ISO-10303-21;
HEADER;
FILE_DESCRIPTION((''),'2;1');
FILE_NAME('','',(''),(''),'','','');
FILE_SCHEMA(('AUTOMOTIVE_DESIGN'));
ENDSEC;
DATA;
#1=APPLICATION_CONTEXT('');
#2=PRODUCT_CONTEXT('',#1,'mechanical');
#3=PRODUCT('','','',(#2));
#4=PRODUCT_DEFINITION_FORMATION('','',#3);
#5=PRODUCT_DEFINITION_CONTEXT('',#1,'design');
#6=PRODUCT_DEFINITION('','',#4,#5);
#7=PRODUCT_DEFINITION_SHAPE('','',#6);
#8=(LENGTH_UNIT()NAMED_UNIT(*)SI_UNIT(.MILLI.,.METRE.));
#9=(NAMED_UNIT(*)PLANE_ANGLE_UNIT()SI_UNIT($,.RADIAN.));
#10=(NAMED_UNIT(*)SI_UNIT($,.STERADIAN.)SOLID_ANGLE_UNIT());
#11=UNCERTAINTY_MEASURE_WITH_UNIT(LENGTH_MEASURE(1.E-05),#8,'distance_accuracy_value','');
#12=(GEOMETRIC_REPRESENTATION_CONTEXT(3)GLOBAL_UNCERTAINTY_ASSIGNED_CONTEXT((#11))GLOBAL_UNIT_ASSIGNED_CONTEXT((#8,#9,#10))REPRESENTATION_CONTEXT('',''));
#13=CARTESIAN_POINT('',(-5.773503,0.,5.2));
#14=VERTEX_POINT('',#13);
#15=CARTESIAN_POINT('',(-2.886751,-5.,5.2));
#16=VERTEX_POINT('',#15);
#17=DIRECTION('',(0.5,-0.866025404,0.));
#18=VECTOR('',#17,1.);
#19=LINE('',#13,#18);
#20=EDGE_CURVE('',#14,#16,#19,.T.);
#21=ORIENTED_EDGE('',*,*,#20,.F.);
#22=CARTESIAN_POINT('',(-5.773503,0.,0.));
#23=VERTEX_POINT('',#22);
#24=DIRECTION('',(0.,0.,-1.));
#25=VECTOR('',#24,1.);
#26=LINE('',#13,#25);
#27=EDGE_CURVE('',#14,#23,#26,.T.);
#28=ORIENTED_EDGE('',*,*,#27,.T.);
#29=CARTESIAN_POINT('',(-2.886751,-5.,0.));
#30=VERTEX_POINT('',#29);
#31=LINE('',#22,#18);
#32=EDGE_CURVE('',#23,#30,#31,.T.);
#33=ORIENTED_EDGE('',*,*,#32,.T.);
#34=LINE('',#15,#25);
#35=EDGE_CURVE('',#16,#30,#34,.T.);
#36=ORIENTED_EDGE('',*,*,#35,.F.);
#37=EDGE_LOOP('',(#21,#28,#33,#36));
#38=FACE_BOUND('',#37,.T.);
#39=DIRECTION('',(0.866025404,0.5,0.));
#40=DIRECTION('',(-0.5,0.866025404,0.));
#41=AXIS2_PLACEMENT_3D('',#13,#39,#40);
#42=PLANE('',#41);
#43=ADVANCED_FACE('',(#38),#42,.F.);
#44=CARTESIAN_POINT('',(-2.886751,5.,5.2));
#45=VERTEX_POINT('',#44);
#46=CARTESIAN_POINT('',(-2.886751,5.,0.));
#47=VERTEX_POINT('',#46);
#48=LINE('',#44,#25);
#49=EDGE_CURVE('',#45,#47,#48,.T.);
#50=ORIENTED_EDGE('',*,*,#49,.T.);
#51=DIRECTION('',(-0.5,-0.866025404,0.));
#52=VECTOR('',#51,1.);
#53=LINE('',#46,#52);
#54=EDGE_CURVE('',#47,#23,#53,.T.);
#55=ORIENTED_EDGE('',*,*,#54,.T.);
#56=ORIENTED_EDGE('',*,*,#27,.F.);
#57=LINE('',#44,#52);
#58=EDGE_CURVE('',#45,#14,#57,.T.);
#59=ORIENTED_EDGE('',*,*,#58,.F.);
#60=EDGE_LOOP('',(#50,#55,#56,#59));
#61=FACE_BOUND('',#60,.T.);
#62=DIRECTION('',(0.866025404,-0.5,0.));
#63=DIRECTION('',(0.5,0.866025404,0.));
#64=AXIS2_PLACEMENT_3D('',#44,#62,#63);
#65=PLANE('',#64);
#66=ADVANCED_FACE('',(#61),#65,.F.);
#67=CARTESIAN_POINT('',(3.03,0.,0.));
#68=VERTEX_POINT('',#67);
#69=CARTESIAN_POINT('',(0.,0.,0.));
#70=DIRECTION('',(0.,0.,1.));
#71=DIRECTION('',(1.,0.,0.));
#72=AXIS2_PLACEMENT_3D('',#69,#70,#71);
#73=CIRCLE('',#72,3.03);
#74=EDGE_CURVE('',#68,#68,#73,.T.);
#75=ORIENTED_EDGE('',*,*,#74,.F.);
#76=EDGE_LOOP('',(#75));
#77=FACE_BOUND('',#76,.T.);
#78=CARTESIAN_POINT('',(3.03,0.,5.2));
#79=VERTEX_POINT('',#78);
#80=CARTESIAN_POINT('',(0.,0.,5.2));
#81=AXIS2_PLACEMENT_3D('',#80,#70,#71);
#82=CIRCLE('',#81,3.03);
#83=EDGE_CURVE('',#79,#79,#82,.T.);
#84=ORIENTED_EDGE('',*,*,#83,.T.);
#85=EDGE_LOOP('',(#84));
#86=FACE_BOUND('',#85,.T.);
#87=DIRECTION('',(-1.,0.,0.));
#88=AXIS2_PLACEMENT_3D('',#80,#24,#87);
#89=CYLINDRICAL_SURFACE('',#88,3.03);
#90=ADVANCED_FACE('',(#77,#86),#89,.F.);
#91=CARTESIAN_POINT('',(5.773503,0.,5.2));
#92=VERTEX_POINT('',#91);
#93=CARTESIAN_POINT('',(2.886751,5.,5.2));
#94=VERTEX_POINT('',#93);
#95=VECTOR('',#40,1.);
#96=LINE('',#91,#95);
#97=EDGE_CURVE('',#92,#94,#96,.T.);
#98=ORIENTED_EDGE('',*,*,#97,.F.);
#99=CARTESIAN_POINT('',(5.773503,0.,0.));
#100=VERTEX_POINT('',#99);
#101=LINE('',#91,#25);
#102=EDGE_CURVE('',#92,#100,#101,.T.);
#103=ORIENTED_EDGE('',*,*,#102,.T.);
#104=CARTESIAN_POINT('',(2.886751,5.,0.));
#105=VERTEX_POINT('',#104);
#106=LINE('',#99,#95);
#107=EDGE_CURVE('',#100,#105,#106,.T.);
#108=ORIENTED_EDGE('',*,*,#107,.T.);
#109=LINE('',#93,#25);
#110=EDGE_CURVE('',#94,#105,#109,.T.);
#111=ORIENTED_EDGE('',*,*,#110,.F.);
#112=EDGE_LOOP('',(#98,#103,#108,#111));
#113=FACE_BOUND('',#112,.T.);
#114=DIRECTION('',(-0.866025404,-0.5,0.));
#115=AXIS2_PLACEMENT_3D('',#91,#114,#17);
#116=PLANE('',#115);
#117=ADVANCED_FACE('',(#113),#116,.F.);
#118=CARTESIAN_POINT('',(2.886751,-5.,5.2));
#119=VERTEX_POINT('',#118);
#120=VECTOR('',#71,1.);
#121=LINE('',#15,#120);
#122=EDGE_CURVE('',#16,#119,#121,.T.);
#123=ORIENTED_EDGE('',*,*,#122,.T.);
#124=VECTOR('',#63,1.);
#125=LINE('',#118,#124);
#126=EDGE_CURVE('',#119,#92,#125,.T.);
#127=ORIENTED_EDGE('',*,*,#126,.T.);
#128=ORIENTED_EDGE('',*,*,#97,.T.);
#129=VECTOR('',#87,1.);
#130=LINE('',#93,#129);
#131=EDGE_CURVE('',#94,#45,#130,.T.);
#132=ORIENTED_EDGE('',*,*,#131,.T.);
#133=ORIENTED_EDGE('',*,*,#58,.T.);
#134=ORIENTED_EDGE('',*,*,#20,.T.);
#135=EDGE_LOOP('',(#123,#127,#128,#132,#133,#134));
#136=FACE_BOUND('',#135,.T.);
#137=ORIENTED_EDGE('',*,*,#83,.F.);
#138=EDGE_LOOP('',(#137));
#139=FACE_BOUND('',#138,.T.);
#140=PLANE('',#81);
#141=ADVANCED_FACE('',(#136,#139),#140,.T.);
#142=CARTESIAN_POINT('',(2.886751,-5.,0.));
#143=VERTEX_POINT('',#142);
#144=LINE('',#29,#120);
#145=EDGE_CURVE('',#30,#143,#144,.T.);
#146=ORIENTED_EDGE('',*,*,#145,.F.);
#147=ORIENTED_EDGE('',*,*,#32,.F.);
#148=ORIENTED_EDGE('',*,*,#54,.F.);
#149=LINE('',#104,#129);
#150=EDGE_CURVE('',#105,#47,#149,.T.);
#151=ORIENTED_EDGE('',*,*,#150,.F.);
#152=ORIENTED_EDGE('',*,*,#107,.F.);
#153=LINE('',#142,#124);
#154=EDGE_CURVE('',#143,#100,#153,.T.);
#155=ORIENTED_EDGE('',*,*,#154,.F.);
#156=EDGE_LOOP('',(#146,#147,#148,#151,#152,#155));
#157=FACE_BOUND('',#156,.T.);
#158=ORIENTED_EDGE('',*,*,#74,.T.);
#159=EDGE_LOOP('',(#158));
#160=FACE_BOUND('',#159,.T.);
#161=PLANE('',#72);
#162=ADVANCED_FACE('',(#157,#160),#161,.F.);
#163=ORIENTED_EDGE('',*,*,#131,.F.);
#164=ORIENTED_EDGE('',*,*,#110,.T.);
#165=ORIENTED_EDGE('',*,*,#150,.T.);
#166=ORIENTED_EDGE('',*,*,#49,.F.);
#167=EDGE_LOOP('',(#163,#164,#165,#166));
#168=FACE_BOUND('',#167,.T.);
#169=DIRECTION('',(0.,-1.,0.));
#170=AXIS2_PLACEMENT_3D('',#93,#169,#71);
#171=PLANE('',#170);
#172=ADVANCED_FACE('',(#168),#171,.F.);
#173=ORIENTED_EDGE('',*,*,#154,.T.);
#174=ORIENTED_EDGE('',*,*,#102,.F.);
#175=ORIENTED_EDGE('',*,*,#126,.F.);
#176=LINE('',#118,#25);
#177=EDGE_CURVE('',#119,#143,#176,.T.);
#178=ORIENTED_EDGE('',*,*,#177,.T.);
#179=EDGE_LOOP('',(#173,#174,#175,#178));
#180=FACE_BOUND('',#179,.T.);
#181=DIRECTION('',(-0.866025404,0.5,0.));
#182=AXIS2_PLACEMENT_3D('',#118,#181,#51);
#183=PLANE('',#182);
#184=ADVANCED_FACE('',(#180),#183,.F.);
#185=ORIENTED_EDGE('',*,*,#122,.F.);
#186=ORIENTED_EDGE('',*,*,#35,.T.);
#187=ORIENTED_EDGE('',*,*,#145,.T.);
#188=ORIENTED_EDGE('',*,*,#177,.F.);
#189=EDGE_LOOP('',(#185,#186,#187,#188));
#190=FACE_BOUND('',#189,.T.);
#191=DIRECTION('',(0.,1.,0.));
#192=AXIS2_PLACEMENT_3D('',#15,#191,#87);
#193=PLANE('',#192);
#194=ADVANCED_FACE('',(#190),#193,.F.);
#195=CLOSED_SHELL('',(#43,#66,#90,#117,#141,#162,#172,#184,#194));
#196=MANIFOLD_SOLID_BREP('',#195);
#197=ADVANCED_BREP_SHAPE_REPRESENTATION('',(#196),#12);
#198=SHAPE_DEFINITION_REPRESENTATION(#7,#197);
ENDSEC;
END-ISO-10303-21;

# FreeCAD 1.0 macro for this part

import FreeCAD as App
import Part
import Sketcher

V = App.Vector
Q = App.Units.Quantity


def add_polygon(sketch, points):
    """Adds a closed chain of lines whose ends are joined by coincident constraints."""
    first, n = sketch.GeometryCount, len(points)
    for a, b in zip(points, points[1:] + points[:1]):
        sketch.addGeometry(Part.LineSegment(App.Vector(*a, 0), App.Vector(*b, 0)), False)
    for i in range(n):
        sketch.addConstraint(Sketcher.Constraint("Coincident", first + i, 2, first + (i + 1) % n, 1))

doc = App.newDocument("Part")
params = doc.addObject("Spreadsheet::Sheet", "Params")
for row, (alias, value) in enumerate([
    ("sketch1_diameter", "6.06 mm"),
    ("pad1_length", "5.2 mm"),
], start=1):
    params.set(f"A{row}", alias)
    params.set(f"B{row}", "=" + value)
    params.setAlias(f"B{row}", alias)

body = doc.addObject("PartDesign::Body", "Body")

sketch1 = body.newObject("Sketcher::SketchObject", "Sketch")
sketch1.AttachmentSupport = (doc.getObject("XY_Plane"), [""])
sketch1.MapMode = "FlatFace"
add_polygon(sketch1, [(5.8, 0), (2.9, 5), (-2.9, 5), (-5.8, 0), (-2.9, -5), (2.9, -5)])
sketch1.addGeometry(Part.Circle(V(0, 0, 0), V(0, 0, 1), 3), False)
sketch1.addConstraint(Sketcher.Constraint("Horizontal", 1))
sketch1.addConstraint(Sketcher.Constraint("Horizontal", 4))
sketch1.addConstraint(Sketcher.Constraint("Coincident", 6, 3, -1, 1))
sketch1.addConstraint(Sketcher.Constraint("Symmetric", 0, 2, 3, 2, -1, 1))
sketch1.addConstraint(Sketcher.Constraint("Symmetric", 2, 2, 5, 2, -1, 1))
sketch1.addConstraint(Sketcher.Constraint("PointOnObject", 2, 2, -1))
sketch1.addConstraint(Sketcher.Constraint("Parallel", 2, 5))
sketch1.addConstraint(Sketcher.Constraint("Vertical", 1, 2, 3, 2))
sketch1.addConstraint(Sketcher.Constraint("Diameter", 6, Q("6.06 mm")))
sketch1.addConstraint(Sketcher.Constraint("Angle", 0, Q("120 deg")))
sketch1.addConstraint(Sketcher.Constraint("DistanceY", -1, 1, 0, 2, Q("5 mm")))
sketch1.addConstraint(Sketcher.Constraint("DistanceX", 1, 2, 1, 1, Q("5.773503 mm")))
sketch1.setExpression("Constraints[14]", "Params.sketch1_diameter")
pad1 = body.newObject("PartDesign::Pad", "Pad")
pad1.Profile = sketch1
pad1.setExpression("Length", "Params.pad1_length")

doc.recompute()
